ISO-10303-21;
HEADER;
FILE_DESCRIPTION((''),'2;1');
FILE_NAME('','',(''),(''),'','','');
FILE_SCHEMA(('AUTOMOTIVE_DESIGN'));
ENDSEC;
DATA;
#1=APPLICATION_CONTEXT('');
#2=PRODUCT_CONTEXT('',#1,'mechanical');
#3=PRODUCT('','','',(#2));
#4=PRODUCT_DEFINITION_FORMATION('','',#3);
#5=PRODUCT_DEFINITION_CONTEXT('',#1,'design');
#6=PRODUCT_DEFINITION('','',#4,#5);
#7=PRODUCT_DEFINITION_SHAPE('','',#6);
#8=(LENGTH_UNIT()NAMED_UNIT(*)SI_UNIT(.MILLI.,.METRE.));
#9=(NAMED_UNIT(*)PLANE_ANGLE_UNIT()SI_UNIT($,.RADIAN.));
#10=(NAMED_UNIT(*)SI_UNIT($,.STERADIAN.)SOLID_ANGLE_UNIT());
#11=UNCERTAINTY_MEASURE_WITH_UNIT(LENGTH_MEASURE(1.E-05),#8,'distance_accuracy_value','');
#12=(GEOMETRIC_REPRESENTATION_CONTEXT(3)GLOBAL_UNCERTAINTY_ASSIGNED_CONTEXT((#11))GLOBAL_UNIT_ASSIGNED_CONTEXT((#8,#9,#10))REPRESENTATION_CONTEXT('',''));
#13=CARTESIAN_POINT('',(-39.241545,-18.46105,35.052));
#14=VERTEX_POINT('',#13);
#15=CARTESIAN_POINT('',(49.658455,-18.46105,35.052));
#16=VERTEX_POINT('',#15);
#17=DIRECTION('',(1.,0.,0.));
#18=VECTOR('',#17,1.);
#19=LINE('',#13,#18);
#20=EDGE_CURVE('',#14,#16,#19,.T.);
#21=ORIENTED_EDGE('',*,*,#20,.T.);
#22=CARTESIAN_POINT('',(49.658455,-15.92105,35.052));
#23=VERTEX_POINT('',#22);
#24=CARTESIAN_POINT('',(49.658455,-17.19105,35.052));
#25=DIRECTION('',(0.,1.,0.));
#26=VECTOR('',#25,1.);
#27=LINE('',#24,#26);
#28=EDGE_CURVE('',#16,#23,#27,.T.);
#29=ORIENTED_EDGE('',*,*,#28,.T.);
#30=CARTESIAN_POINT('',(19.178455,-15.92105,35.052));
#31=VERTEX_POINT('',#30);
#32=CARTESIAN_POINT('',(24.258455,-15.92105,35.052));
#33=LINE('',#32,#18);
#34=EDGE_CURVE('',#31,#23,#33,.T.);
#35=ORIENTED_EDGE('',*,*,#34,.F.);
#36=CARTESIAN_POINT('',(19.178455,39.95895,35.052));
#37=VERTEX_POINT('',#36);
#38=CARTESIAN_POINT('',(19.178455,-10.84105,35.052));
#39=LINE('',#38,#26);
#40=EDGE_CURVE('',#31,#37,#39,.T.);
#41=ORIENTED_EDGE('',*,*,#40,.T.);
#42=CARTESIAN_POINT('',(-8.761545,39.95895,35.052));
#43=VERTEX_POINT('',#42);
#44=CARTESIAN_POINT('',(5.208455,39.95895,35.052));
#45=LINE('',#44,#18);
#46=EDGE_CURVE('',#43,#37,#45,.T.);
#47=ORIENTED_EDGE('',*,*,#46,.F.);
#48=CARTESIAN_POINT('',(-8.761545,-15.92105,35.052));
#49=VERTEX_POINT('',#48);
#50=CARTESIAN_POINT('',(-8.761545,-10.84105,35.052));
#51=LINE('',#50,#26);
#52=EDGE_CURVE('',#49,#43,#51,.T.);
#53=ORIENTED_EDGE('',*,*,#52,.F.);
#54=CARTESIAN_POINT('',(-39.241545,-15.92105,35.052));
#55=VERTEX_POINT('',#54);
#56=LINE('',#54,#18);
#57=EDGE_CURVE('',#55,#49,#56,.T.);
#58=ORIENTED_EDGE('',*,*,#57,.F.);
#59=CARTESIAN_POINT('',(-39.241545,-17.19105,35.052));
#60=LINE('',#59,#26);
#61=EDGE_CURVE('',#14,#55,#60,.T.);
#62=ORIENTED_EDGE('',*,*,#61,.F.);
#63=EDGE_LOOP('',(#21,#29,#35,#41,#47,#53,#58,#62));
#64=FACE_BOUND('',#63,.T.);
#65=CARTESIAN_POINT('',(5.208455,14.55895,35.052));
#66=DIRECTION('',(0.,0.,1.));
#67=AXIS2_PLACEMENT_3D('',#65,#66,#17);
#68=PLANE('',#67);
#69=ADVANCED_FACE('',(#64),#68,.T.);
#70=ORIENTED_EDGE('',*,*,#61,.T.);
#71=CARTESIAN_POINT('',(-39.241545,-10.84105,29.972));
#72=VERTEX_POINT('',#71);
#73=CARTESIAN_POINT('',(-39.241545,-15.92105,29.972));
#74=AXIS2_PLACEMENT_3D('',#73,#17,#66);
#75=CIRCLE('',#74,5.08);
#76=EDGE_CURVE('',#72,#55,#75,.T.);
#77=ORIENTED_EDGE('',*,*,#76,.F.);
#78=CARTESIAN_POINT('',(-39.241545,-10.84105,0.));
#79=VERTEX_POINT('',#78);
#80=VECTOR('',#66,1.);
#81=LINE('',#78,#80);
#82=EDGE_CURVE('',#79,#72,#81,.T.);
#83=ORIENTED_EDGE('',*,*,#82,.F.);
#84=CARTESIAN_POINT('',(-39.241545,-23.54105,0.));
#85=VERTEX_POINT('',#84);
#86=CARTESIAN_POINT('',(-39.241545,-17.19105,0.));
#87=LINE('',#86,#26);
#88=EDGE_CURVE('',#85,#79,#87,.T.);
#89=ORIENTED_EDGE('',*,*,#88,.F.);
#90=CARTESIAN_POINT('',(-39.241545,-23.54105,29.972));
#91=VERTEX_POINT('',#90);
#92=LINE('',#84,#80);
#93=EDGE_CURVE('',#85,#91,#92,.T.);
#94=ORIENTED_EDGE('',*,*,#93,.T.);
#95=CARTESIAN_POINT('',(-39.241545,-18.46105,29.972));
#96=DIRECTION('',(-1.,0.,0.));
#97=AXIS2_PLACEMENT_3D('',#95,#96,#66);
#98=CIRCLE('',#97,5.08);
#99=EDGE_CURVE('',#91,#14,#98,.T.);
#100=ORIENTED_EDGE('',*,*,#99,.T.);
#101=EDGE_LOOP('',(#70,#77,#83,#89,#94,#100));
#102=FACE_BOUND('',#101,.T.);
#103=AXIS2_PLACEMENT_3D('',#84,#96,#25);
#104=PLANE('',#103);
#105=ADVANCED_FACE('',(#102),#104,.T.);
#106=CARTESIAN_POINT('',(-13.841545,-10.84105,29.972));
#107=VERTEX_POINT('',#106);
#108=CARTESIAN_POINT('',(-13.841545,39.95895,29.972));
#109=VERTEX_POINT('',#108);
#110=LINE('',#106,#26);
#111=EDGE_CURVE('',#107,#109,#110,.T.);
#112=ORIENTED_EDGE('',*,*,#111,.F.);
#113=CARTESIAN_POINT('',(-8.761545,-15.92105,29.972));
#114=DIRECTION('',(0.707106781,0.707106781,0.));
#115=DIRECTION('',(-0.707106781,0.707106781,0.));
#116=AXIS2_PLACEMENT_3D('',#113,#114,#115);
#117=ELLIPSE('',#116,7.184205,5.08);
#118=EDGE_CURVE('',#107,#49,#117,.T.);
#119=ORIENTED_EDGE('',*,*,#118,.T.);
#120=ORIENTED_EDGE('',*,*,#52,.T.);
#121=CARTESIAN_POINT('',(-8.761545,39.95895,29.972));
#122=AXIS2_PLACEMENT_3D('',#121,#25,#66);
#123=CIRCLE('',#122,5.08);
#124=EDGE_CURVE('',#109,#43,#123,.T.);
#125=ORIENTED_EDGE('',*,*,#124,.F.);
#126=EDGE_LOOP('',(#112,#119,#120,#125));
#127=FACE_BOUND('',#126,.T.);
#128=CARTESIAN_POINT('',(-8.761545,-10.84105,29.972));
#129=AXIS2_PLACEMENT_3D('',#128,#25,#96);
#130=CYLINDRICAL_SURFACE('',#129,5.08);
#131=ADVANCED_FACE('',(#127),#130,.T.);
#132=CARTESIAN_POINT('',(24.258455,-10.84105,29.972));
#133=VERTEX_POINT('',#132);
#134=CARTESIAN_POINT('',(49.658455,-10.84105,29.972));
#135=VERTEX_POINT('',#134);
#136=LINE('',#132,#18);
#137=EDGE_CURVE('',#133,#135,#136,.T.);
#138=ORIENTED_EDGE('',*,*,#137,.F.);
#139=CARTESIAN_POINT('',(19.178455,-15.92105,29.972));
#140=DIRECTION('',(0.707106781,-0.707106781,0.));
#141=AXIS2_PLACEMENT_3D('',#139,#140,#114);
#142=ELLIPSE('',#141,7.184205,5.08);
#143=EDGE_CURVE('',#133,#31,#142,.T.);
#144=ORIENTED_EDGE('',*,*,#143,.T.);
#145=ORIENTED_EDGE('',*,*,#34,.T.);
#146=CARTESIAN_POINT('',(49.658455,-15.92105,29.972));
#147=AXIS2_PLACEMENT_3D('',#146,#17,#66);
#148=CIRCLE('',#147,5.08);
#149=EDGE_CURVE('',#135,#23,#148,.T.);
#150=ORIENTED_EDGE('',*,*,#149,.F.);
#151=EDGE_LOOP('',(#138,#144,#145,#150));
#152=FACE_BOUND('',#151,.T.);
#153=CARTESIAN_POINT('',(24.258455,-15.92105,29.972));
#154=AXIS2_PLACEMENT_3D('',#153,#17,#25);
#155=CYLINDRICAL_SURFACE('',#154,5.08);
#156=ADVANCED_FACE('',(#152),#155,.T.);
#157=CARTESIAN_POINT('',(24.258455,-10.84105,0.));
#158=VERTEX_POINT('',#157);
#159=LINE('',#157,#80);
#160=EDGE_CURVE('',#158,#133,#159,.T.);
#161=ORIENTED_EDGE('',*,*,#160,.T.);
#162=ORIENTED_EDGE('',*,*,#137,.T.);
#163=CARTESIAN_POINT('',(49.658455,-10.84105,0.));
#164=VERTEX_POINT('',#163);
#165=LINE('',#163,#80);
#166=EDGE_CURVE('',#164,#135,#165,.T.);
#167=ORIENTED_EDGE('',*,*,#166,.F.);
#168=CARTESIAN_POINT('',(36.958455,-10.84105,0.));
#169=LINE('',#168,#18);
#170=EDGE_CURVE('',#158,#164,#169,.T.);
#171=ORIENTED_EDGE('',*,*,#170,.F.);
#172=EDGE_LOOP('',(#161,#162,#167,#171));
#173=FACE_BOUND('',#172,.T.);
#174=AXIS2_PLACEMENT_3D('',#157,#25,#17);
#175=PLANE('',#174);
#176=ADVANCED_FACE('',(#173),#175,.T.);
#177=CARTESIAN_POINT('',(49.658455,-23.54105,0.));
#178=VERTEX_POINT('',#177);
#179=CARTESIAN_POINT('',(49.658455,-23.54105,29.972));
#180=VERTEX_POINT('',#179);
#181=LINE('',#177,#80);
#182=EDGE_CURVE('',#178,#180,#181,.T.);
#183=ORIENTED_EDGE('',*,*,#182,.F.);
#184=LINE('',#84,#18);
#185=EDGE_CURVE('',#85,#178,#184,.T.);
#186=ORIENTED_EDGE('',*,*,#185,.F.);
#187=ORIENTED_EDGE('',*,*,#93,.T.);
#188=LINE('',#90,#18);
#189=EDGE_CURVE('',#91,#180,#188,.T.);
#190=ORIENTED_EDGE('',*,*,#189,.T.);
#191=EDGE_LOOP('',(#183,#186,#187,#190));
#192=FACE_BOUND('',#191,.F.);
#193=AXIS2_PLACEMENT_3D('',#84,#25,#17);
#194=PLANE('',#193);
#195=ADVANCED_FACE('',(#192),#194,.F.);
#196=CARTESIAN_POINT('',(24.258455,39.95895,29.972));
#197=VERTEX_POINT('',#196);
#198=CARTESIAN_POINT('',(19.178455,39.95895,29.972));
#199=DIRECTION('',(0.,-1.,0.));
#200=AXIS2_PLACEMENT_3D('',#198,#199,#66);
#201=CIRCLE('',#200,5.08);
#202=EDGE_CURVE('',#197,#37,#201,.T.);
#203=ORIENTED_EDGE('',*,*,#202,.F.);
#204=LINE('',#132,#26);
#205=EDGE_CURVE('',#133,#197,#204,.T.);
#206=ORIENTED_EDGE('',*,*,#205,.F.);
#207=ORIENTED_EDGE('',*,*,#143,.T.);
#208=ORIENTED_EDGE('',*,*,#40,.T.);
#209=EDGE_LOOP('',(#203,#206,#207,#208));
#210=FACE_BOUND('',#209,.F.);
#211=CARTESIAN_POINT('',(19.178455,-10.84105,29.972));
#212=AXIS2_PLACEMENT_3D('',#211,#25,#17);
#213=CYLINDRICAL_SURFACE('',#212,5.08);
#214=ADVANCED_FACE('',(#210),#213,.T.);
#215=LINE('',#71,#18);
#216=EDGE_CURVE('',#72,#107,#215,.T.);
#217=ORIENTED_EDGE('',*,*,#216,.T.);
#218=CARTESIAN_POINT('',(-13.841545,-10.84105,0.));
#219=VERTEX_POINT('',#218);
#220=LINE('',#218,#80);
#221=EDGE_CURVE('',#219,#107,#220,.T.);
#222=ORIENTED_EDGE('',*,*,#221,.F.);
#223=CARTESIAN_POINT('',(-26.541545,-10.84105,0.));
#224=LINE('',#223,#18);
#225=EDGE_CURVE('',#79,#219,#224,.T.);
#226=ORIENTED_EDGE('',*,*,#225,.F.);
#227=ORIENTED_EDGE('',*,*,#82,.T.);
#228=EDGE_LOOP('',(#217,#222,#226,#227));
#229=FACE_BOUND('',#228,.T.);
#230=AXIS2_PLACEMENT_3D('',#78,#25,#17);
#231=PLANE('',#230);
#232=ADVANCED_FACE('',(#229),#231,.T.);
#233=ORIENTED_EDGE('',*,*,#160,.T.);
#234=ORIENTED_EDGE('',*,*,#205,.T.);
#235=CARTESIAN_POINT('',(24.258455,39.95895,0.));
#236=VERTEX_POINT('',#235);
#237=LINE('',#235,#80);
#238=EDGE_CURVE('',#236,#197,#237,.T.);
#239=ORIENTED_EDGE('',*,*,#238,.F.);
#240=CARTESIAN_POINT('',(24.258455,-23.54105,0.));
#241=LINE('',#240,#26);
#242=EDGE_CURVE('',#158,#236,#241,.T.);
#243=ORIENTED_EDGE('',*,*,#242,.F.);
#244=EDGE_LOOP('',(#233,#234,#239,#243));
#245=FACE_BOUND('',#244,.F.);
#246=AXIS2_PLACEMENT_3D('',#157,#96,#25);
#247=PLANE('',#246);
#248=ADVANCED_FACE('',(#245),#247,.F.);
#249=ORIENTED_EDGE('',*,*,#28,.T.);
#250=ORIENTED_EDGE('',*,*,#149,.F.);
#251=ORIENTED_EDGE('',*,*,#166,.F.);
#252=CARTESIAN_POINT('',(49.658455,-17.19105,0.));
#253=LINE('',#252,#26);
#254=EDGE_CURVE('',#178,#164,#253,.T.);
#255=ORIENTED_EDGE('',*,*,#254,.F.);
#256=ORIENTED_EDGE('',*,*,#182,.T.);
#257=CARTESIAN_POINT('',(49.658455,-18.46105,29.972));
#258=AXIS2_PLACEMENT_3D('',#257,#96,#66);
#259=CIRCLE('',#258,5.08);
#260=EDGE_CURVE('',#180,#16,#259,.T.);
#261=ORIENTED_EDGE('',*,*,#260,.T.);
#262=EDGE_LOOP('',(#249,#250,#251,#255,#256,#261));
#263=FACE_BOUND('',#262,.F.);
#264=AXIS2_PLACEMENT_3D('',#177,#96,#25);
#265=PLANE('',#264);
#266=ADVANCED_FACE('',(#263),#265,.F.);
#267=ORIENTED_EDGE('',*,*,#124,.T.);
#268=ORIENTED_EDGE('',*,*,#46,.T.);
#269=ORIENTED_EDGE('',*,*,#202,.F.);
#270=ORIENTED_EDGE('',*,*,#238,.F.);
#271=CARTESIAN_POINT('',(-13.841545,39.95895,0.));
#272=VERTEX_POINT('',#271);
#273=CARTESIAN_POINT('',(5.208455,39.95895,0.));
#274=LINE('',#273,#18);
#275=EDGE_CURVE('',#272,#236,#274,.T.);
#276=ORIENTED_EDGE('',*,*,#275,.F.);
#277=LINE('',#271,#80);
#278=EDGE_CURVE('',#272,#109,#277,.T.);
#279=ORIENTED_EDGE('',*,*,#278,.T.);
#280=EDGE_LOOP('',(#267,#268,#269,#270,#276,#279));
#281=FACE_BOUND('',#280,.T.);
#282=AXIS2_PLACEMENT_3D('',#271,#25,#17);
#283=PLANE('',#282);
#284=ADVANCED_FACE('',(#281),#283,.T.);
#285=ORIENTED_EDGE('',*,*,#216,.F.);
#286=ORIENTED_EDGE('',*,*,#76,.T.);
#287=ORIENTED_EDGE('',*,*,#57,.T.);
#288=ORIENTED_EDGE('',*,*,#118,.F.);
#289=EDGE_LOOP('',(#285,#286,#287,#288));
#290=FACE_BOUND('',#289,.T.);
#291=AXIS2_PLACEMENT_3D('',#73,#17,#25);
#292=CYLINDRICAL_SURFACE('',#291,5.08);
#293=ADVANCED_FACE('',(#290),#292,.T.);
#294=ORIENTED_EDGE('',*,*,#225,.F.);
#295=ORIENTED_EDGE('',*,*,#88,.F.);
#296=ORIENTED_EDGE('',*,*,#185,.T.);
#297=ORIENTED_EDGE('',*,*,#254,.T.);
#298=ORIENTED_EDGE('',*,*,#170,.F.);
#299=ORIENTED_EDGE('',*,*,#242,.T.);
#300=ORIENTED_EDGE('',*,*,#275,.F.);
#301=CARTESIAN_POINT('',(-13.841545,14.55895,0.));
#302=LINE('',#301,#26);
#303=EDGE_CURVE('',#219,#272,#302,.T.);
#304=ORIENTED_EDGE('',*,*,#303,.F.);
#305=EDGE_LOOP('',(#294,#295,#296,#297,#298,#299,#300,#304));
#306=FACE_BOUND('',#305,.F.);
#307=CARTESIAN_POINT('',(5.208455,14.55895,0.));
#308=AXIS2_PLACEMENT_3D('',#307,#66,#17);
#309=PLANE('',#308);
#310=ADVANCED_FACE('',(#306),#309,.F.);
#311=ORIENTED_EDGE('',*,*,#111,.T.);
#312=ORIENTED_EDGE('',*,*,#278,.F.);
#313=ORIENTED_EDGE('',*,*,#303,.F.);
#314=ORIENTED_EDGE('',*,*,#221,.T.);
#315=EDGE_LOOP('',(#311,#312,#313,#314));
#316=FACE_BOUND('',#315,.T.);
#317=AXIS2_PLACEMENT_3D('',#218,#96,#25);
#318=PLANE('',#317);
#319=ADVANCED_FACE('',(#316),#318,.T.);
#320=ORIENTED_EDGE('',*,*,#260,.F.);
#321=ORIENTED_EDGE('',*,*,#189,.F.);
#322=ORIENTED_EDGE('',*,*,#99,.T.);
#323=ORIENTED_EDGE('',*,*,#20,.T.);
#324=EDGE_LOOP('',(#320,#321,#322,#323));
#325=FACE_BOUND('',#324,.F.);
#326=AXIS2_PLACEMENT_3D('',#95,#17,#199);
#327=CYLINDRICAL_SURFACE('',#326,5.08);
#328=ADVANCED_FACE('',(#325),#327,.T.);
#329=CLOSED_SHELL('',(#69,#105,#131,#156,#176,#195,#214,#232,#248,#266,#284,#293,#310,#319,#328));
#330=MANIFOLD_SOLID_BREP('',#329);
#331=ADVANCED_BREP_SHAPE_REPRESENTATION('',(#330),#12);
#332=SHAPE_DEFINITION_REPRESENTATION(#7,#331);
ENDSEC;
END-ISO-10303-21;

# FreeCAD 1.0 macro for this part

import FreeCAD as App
import Part
import Sketcher
Q = App.Units.Quantity


def edges_at(feature, points):
    """Names of the edges that pass closest to the given points."""
    edges = feature.Shape.Edges
    near = lambda p: min(range(len(edges)), key=lambda i: edges[i].distToShape(Part.Vertex(*p))[0])
    return sorted({f"Edge{near(p) + 1}" for p in points})

doc = App.newDocument("Part")
params = doc.addObject("Spreadsheet::Sheet", "Params")
for row, (alias, value) in enumerate([
    ("sketch1_width", "1 in"),
    ("sketch1_height", "2 in"),
    ("sketch1_width2", "1.5 in"),
    ("sketch1_height2", "0.5 in"),
    ("pad1_length", "1.38 in"),
    ("fillet_radius", "0.2 in"),
], start=1):
    params.set(f"A{row}", alias)
    params.set(f"B{row}", "=" + value)
    params.setAlias(f"B{row}", alias)

body = doc.addObject("PartDesign::Body", "Body")

# Sketch on XY plane
sketch1 = doc.addObject("Sketcher::SketchObject", "Sketch")
body.addObject(sketch1)
sketch1.AttachmentSupport = (doc.XY_Plane, [""])
sketch1.MapMode = "FlatFace"
sketch1.addGeometry([
    Part.LineSegment(App.Vector(50, -11, 0), App.Vector(24, -11, 0)),  # 0
    Part.LineSegment(App.Vector(24, -11, 0), App.Vector(24, 40, 0)),  # 1
    Part.LineSegment(App.Vector(24, 40, 0), App.Vector(-14, 40, 0)),  # 2
    Part.LineSegment(App.Vector(-14, 40, 0), App.Vector(-14, -11, 0)),  # 3
    Part.LineSegment(App.Vector(-14, -11, 0), App.Vector(-39, -11, 0)),  # 4
    Part.LineSegment(App.Vector(-39, -11, 0), App.Vector(-39, -24, 0)),  # 5
    Part.LineSegment(App.Vector(-39, -24, 0), App.Vector(50, -24, 0)),  # 6
    Part.LineSegment(App.Vector(50, -24, 0), App.Vector(50, -11, 0)),  # 7
], False)
sketch1.addConstraint([
    Sketcher.Constraint("Coincident", 0, 2, 1, 1),
    Sketcher.Constraint("Coincident", 1, 2, 2, 1),
    Sketcher.Constraint("Coincident", 2, 2, 3, 1),
    Sketcher.Constraint("Coincident", 3, 2, 4, 1),
    Sketcher.Constraint("Coincident", 4, 2, 5, 1),
    Sketcher.Constraint("Coincident", 5, 2, 6, 1),
    Sketcher.Constraint("Coincident", 6, 2, 7, 1),
    Sketcher.Constraint("Coincident", 7, 2, 0, 1),
    Sketcher.Constraint("Horizontal", 0),
    Sketcher.Constraint("Vertical", 1),
    Sketcher.Constraint("Horizontal", 2),
    Sketcher.Constraint("Vertical", 3),
    Sketcher.Constraint("Horizontal", 4),
    Sketcher.Constraint("Vertical", 5),
    Sketcher.Constraint("Horizontal", 6),
    Sketcher.Constraint("Vertical", 7),
    Sketcher.Constraint("Horizontal", 0, 2, 3, 2),
    Sketcher.Constraint("Equal", 0, 4),
    Sketcher.Constraint("DistanceX", 0, 2, 0, 1, Q("1 in")),
    Sketcher.Constraint("DistanceY", 1, 1, 1, 2, Q("2 in")),
    Sketcher.Constraint("DistanceX", 2, 2, 2, 1, Q("1.5 in")),
    Sketcher.Constraint("DistanceY", 5, 2, 5, 1, Q("0.5 in")),
    Sketcher.Constraint("DistanceY", 0, 2, -1, 1, 10.84105),
    Sketcher.Constraint("DistanceX", -1, 1, 0, 2, 24.258455),
])
sketch1.setExpression("Constraints[18]", "Params.sketch1_width")
sketch1.setExpression("Constraints[19]", "Params.sketch1_height")
sketch1.setExpression("Constraints[20]", "Params.sketch1_width2")
sketch1.setExpression("Constraints[21]", "Params.sketch1_height2")
pad1 = doc.addObject("PartDesign::Pad", "Pad")
body.addObject(pad1)
pad1.Profile = sketch1
pad1.setExpression("Length", "Params.pad1_length")
doc.recompute()

fillet = doc.addObject("PartDesign::Fillet", "Fillet")
body.addObject(fillet)
fillet.Base = (pad1, edges_at(pad1, [
    (24.258, 14.559, 35.052),
    (-13.842, 14.559, 35.052),
    (-26.542, -10.841, 35.052),
    (36.958, -10.841, 35.052),
    (5.208, -23.541, 35.052),
]))
fillet.setExpression("Radius", "Params.fillet_radius")

doc.recompute()
